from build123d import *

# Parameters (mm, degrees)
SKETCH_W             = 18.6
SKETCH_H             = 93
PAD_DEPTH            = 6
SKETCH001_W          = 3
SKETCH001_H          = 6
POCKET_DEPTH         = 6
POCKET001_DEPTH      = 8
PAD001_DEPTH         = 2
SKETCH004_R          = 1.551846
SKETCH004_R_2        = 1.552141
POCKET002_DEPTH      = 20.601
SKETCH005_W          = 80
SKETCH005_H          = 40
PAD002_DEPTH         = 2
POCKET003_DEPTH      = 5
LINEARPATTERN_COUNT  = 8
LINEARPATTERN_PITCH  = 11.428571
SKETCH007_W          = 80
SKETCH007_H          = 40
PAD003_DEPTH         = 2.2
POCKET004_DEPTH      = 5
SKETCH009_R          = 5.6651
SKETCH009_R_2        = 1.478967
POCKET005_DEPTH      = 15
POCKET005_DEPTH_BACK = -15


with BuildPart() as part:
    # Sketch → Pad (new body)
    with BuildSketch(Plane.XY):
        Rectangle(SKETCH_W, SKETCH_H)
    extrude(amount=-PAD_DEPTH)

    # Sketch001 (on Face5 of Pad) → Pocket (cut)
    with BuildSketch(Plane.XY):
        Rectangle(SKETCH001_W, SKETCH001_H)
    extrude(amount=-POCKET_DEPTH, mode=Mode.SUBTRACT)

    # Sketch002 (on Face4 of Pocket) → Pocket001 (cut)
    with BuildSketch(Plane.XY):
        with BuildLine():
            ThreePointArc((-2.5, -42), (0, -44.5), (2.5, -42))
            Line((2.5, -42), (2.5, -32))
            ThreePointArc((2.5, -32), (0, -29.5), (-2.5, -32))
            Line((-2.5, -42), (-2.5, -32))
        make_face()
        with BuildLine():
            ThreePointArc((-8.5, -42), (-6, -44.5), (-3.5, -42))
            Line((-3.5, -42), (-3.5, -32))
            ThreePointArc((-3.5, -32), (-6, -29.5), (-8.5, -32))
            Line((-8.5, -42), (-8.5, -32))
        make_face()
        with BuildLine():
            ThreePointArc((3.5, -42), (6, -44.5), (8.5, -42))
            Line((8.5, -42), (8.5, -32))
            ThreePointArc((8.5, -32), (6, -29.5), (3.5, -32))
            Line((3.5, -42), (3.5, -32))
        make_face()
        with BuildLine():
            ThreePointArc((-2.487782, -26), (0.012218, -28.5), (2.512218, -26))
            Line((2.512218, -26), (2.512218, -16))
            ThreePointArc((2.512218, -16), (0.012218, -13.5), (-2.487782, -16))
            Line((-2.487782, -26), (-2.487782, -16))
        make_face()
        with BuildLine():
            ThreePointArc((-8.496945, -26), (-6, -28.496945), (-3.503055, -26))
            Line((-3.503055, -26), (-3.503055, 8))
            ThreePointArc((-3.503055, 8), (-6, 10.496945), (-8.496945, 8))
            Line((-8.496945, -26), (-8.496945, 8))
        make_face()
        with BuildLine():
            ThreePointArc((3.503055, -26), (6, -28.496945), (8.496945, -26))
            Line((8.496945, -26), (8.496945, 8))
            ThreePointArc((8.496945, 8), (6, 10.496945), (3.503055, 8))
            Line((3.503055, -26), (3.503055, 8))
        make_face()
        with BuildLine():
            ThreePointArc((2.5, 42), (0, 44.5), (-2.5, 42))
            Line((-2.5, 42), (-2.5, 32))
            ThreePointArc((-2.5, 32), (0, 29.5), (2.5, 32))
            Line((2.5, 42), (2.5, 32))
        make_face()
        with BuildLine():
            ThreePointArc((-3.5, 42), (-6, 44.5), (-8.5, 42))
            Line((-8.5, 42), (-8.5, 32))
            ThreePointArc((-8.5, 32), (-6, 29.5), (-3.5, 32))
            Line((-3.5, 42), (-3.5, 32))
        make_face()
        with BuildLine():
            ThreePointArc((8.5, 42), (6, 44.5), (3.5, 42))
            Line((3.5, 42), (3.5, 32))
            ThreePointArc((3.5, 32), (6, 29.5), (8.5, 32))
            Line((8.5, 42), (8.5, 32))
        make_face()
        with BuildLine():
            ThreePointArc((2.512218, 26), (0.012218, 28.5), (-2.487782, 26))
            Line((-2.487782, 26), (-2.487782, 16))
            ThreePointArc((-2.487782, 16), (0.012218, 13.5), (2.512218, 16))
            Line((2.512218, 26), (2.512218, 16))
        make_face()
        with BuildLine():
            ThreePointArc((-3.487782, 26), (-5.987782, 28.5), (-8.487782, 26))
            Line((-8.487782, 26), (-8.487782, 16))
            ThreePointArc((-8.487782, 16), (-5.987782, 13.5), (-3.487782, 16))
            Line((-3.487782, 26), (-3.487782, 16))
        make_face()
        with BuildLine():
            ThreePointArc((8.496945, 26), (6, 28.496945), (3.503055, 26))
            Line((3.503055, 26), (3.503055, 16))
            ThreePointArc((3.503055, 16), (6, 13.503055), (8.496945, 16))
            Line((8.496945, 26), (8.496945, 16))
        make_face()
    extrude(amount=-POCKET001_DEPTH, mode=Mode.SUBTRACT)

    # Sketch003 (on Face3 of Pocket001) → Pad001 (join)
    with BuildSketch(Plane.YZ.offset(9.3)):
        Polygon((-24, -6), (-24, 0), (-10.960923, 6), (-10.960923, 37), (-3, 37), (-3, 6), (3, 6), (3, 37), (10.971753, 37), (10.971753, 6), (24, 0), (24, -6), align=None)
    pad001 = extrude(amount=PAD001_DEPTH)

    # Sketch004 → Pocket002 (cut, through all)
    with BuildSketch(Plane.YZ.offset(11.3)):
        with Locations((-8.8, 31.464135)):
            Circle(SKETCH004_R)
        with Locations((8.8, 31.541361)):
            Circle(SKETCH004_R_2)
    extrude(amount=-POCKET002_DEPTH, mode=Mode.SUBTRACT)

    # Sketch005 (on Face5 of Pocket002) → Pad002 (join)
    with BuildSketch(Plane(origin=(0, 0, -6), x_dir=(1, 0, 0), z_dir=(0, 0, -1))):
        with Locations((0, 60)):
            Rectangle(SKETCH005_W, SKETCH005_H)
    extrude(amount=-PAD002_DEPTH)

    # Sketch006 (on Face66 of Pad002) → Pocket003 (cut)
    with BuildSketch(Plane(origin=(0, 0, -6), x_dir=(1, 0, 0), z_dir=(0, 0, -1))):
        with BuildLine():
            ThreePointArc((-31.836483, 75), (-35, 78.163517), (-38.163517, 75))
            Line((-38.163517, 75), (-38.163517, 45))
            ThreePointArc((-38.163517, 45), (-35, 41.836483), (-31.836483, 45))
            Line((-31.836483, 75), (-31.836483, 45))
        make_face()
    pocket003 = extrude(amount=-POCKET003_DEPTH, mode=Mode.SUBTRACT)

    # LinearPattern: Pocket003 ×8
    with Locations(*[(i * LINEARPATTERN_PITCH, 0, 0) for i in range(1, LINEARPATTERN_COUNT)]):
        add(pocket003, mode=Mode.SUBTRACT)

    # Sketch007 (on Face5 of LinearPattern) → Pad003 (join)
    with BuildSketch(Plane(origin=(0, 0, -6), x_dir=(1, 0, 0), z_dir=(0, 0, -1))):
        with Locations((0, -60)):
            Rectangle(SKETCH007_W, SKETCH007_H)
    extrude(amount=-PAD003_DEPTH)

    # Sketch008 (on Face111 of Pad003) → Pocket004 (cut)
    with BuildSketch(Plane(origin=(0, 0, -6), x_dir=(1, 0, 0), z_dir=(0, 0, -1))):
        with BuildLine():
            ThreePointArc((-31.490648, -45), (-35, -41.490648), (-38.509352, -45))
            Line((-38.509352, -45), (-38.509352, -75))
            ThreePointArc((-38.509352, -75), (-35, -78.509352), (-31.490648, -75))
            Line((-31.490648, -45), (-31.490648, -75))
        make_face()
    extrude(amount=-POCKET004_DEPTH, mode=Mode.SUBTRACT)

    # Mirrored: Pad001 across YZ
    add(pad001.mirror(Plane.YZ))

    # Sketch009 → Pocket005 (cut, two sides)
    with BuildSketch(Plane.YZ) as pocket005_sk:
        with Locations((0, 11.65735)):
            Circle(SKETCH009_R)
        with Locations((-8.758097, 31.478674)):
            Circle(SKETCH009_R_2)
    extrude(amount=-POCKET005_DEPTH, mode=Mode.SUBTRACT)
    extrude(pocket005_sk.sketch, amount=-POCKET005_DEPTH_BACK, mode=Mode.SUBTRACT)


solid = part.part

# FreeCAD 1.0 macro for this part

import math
import FreeCAD as App
import Part
import Sketcher

V = App.Vector
Q = App.Units.Quantity

doc = App.newDocument("Part")
body = doc.addObject("PartDesign::Body", "Body")

# Sketch on XY plane
sketch1 = body.newObject("Sketcher::SketchObject", "Sketch")
sketch1.AttachmentSupport = (doc.getObject("XY_Plane"), [""])
sketch1.MapMode = "FlatFace"
sketch1.addGeometry([
    Part.LineSegment(V(-9, 46, 0), V(-9, -46, 0)),
    Part.LineSegment(V(-9, -46, 0), V(9, -46, 0)),
    Part.LineSegment(V(9, -46, 0), V(9, 46, 0)),
    Part.LineSegment(V(9, 46, 0), V(-9, 46, 0)),
], False)
sketch1.addConstraint([
    Sketcher.Constraint("Coincident", 0, 2, 1, 1),
    Sketcher.Constraint("Coincident", 1, 2, 2, 1),
    Sketcher.Constraint("Coincident", 2, 2, 3, 1),
    Sketcher.Constraint("Coincident", 3, 2, 0, 1),
    Sketcher.Constraint("Vertical", 0),
    Sketcher.Constraint("Horizontal", 1),
    Sketcher.Constraint("Vertical", 2),
    Sketcher.Constraint("Horizontal", 3),
    Sketcher.Constraint("Symmetric", 0, 2, 2, 2, -1, 1),
    Sketcher.Constraint("DistanceY", 0, 2, 0, 1, Q("93 mm")),
    Sketcher.Constraint("DistanceX", 1, 1, 1, 2, Q("18.6 mm")),
])
pad1 = body.newObject("PartDesign::Pad", "Pad")
pad1.Profile = sketch1
pad1.Length = 6
pad1.Reversed = True

# Sketch on XY plane
sketch2 = body.newObject("Sketcher::SketchObject", "Sketch001")
sketch2.AttachmentSupport = (doc.getObject("XY_Plane"), [""])
sketch2.MapMode = "FlatFace"
sketch2.addGeometry([
    Part.LineSegment(V(-1.5, 3, 0), V(-1.5, -3, 0)),
    Part.LineSegment(V(-1.5, -3, 0), V(1.5, -3, 0)),
    Part.LineSegment(V(1.5, -3, 0), V(1.5, 3, 0)),
    Part.LineSegment(V(1.5, 3, 0), V(-1.5, 3, 0)),
], False)
sketch2.addConstraint([
    Sketcher.Constraint("Coincident", 0, 2, 1, 1),
    Sketcher.Constraint("Coincident", 1, 2, 2, 1),
    Sketcher.Constraint("Coincident", 2, 2, 3, 1),
    Sketcher.Constraint("Coincident", 3, 2, 0, 1),
    Sketcher.Constraint("Vertical", 0),
    Sketcher.Constraint("Horizontal", 1),
    Sketcher.Constraint("Vertical", 2),
    Sketcher.Constraint("Horizontal", 3),
    Sketcher.Constraint("Symmetric", 0, 2, 2, 2, -1, 1),
    Sketcher.Constraint("DistanceX", 1, 1, 1, 2, Q("3 mm")),
    Sketcher.Constraint("DistanceY", 0, 2, 0, 1, Q("6 mm")),
])
pocket1 = body.newObject("PartDesign::Pocket", "Pocket")
pocket1.Profile = sketch2
pocket1.Length = 6

# Sketch on XY plane
sketch3 = body.newObject("Sketcher::SketchObject", "Sketch002")
sketch3.AttachmentSupport = (doc.getObject("XY_Plane"), [""])
sketch3.MapMode = "FlatFace"
sketch3.addGeometry([
    Part.ArcOfCircle(Part.Circle(V(0, -42, 0), V(0, 0, 1), 2.5), math.radians(180), math.radians(360)),  # 0
    Part.LineSegment(V(2.5, -42, 0), V(2.5, -32, 0)),  # 1
    Part.ArcOfCircle(Part.Circle(V(0, -32, 0), V(0, 0, 1), 2.5), math.radians(0), math.radians(180)),  # 2
    Part.LineSegment(V(-2.5, -32, 0), V(-2.5, -42, 0)),  # 3
    Part.ArcOfCircle(Part.Circle(V(-6, -42, 0), V(0, 0, 1), 2.5), math.radians(180), math.radians(360)),  # 4
    Part.LineSegment(V(-3.5, -42, 0), V(-3.5, -32, 0)),  # 5
    Part.ArcOfCircle(Part.Circle(V(-6, -32, 0), V(0, 0, 1), 2.5), math.radians(0), math.radians(180)),  # 6
    Part.LineSegment(V(-8.5, -32, 0), V(-8.5, -42, 0)),  # 7
    Part.ArcOfCircle(Part.Circle(V(6, -42, 0), V(0, 0, 1), 2.5), math.radians(180), math.radians(360)),  # 8
    Part.LineSegment(V(8.5, -42, 0), V(8.5, -32, 0)),  # 9
    Part.ArcOfCircle(Part.Circle(V(6, -32, 0), V(0, 0, 1), 2.5), math.radians(0), math.radians(180)),  # 10
    Part.LineSegment(V(3.5, -32, 0), V(3.5, -42, 0)),  # 11
    Part.ArcOfCircle(Part.Circle(V(0, -26, 0), V(0, 0, 1), 2.5), math.radians(180), math.radians(360)),  # 12
    Part.LineSegment(V(2.5, -26, 0), V(2.5, -16, 0)),  # 13
    Part.ArcOfCircle(Part.Circle(V(0, -16, 0), V(0, 0, 1), 2.5), math.radians(0), math.radians(180)),  # 14
    Part.LineSegment(V(-2.5, -16, 0), V(-2.5, -26, 0)),  # 15
    Part.ArcOfCircle(Part.Circle(V(-6, -26, 0), V(0, 0, 1), 2.5), math.radians(180), math.radians(360)),  # 16
    Part.LineSegment(V(-3.5, -26, 0), V(-3.5, 8, 0)),  # 17
    Part.ArcOfCircle(Part.Circle(V(-6, 8, 0), V(0, 0, 1), 2.5), math.radians(0), math.radians(180)),  # 18
    Part.LineSegment(V(-8.5, 8, 0), V(-8.5, -26, 0)),  # 19
    Part.ArcOfCircle(Part.Circle(V(6, -26, 0), V(0, 0, 1), 2.5), math.radians(180), math.radians(360)),  # 20
    Part.LineSegment(V(8.5, -26, 0), V(8.5, 8, 0)),  # 21
    Part.ArcOfCircle(Part.Circle(V(6, 8, 0), V(0, 0, 1), 2.5), math.radians(0), math.radians(180)),  # 22
    Part.LineSegment(V(3.5, 8, 0), V(3.5, -26, 0)),  # 23
    Part.ArcOfCircle(Part.Circle(V(0, 42, 0), V(0, 0, 1), 2.5), math.radians(0), math.radians(180)),  # 24
    Part.LineSegment(V(-2.5, 42, 0), V(-2.5, 32, 0)),  # 25
    Part.ArcOfCircle(Part.Circle(V(0, 32, 0), V(0, 0, 1), 2.5), math.radians(180), math.radians(360)),  # 26
    Part.LineSegment(V(2.5, 32, 0), V(2.5, 42, 0)),  # 27
    Part.ArcOfCircle(Part.Circle(V(-6, 42, 0), V(0, 0, 1), 2.5), math.radians(0), math.radians(180)),  # 28
    Part.LineSegment(V(-8.5, 42, 0), V(-8.5, 32, 0)),  # 29
    Part.ArcOfCircle(Part.Circle(V(-6, 32, 0), V(0, 0, 1), 2.5), math.radians(180), math.radians(360)),  # 30
    Part.LineSegment(V(-3.5, 32, 0), V(-3.5, 42, 0)),  # 31
    Part.ArcOfCircle(Part.Circle(V(6, 42, 0), V(0, 0, 1), 2.5), math.radians(0), math.radians(180)),  # 32
    Part.LineSegment(V(3.5, 42, 0), V(3.5, 32, 0)),  # 33
    Part.ArcOfCircle(Part.Circle(V(6, 32, 0), V(0, 0, 1), 2.5), math.radians(180), math.radians(360)),  # 34
    Part.LineSegment(V(8.5, 32, 0), V(8.5, 42, 0)),  # 35
    Part.ArcOfCircle(Part.Circle(V(0, 26, 0), V(0, 0, 1), 2.5), math.radians(0), math.radians(180)),  # 36
    Part.LineSegment(V(-2.5, 26, 0), V(-2.5, 16, 0)),  # 37
    Part.ArcOfCircle(Part.Circle(V(0, 16, 0), V(0, 0, 1), 2.5), math.radians(180), math.radians(360)),  # 38
    Part.LineSegment(V(2.5, 16, 0), V(2.5, 26, 0)),  # 39
    Part.ArcOfCircle(Part.Circle(V(-6, 26, 0), V(0, 0, 1), 2.5), math.radians(0), math.radians(180)),  # 40
    Part.LineSegment(V(-8.5, 26, 0), V(-8.5, 16, 0)),  # 41
    Part.ArcOfCircle(Part.Circle(V(-6, 16, 0), V(0, 0, 1), 2.5), math.radians(180), math.radians(360)),  # 42
    Part.LineSegment(V(-3.5, 16, 0), V(-3.5, 26, 0)),  # 43
    Part.ArcOfCircle(Part.Circle(V(6, 26, 0), V(0, 0, 1), 2.5), math.radians(0), math.radians(180)),  # 44
    Part.LineSegment(V(3.5, 26, 0), V(3.5, 16, 0)),  # 45
    Part.ArcOfCircle(Part.Circle(V(6, 16, 0), V(0, 0, 1), 2.5), math.radians(180), math.radians(360)),  # 46
    Part.LineSegment(V(8.5, 16, 0), V(8.5, 26, 0)),  # 47
], False)
sketch3.addConstraint([
    Sketcher.Constraint("Tangent", 0, 2, 1, 1),
    Sketcher.Constraint("Tangent", 1, 2, 2, 1),
    Sketcher.Constraint("Tangent", 2, 2, 3, 1),
    Sketcher.Constraint("Tangent", 3, 2, 0, 1),
    Sketcher.Constraint("Tangent", 4, 2, 5, 1),
    Sketcher.Constraint("Tangent", 5, 2, 6, 1),
    Sketcher.Constraint("Tangent", 6, 2, 7, 1),
    Sketcher.Constraint("Tangent", 7, 2, 4, 1),
    Sketcher.Constraint("Tangent", 8, 2, 9, 1),
    Sketcher.Constraint("Tangent", 9, 2, 10, 1),
    Sketcher.Constraint("Tangent", 10, 2, 11, 1),
    Sketcher.Constraint("Tangent", 11, 2, 8, 1),
    Sketcher.Constraint("Tangent", 12, 2, 13, 1),
    Sketcher.Constraint("Tangent", 13, 2, 14, 1),
    Sketcher.Constraint("Tangent", 14, 2, 15, 1),
    Sketcher.Constraint("Tangent", 15, 2, 12, 1),
    Sketcher.Constraint("Tangent", 16, 2, 17, 1),
    Sketcher.Constraint("Tangent", 17, 2, 18, 1),
    Sketcher.Constraint("Tangent", 18, 2, 19, 1),
    Sketcher.Constraint("Tangent", 19, 2, 16, 1),
    Sketcher.Constraint("Tangent", 20, 2, 21, 1),
    Sketcher.Constraint("Tangent", 21, 2, 22, 1),
    Sketcher.Constraint("Tangent", 22, 2, 23, 1),
    Sketcher.Constraint("Tangent", 23, 2, 20, 1),
    Sketcher.Constraint("Tangent", 24, 2, 25, 1),
    Sketcher.Constraint("Tangent", 25, 2, 26, 1),
    Sketcher.Constraint("Tangent", 26, 2, 27, 1),
    Sketcher.Constraint("Tangent", 27, 2, 24, 1),
    Sketcher.Constraint("Tangent", 28, 2, 29, 1),
    Sketcher.Constraint("Tangent", 29, 2, 30, 1),
    Sketcher.Constraint("Tangent", 30, 2, 31, 1),
    Sketcher.Constraint("Tangent", 31, 2, 28, 1),
    Sketcher.Constraint("Tangent", 32, 2, 33, 1),
    Sketcher.Constraint("Tangent", 33, 2, 34, 1),
    Sketcher.Constraint("Tangent", 34, 2, 35, 1),
    Sketcher.Constraint("Tangent", 35, 2, 32, 1),
    Sketcher.Constraint("Tangent", 36, 2, 37, 1),
    Sketcher.Constraint("Tangent", 37, 2, 38, 1),
    Sketcher.Constraint("Tangent", 38, 2, 39, 1),
    Sketcher.Constraint("Tangent", 39, 2, 36, 1),
    Sketcher.Constraint("Tangent", 40, 2, 41, 1),
    Sketcher.Constraint("Tangent", 41, 2, 42, 1),
    Sketcher.Constraint("Tangent", 42, 2, 43, 1),
    Sketcher.Constraint("Tangent", 43, 2, 40, 1),
    Sketcher.Constraint("Tangent", 44, 2, 45, 1),
    Sketcher.Constraint("Tangent", 45, 2, 46, 1),
    Sketcher.Constraint("Tangent", 46, 2, 47, 1),
    Sketcher.Constraint("Tangent", 47, 2, 44, 1),
    Sketcher.Constraint("Vertical", 1),
    Sketcher.Constraint("Vertical", 3),
    Sketcher.Constraint("Vertical", 5),
    Sketcher.Constraint("Vertical", 7),
    Sketcher.Constraint("Vertical", 9),
    Sketcher.Constraint("Vertical", 11),
    Sketcher.Constraint("Vertical", 13),
    Sketcher.Constraint("Vertical", 15),
    Sketcher.Constraint("Vertical", 17),
    Sketcher.Constraint("Vertical", 19),
    Sketcher.Constraint("Vertical", 21),
    Sketcher.Constraint("Vertical", 23),
    Sketcher.Constraint("Vertical", 25),
    Sketcher.Constraint("Vertical", 27),
    Sketcher.Constraint("Vertical", 29),
    Sketcher.Constraint("Vertical", 31),
    Sketcher.Constraint("Vertical", 33),
    Sketcher.Constraint("Vertical", 35),
    Sketcher.Constraint("Vertical", 37),
    Sketcher.Constraint("Vertical", 39),
    Sketcher.Constraint("Vertical", 41),
    Sketcher.Constraint("Vertical", 43),
    Sketcher.Constraint("Vertical", 45),
    Sketcher.Constraint("Vertical", 47),
    Sketcher.Constraint("Equal", 2, 4),
    Sketcher.Constraint("Equal", 6, 8),
    Sketcher.Constraint("Equal", 10, 12),
    Sketcher.Constraint("Equal", 18, 20),
    Sketcher.Constraint("Equal", 14, 24),
    Sketcher.Constraint("Equal", 26, 28),
    Sketcher.Constraint("Equal", 30, 32),
    Sketcher.Constraint("Equal", 34, 36),
    Sketcher.Constraint("Equal", 38, 40),
    Sketcher.Constraint("Equal", 22, 44),
    Sketcher.Constraint("Symmetric", 0, 3, 24, 3, -1, 1),
    Sketcher.Constraint("Symmetric", 8, 3, 28, 3, -1, 1),
    Sketcher.Constraint("Symmetric", 4, 3, 32, 3, -1, 1),
    Sketcher.Constraint("Symmetric", 16, 3, 44, 3, -1, 1),
    Sketcher.Constraint("Symmetric", 4, 3, 8, 3, -2),
    Sketcher.Constraint("Symmetric", 16, 3, 20, 3, -2),
    Sketcher.Constraint("Symmetric", 2, 3, 26, 3, -1),
    Sketcher.Constraint("Symmetric", 12, 3, 36, 3, -1),
    Sketcher.Constraint("Horizontal", 0, 3, 4, 3),
    Sketcher.Constraint("Horizontal", 2, 3, 6, 3),
    Sketcher.Constraint("Horizontal", 6, 3, 10, 3),
    Sketcher.Constraint("Horizontal", 12, 3, 16, 3),
    Sketcher.Constraint("Horizontal", 18, 3, 22, 3),
    Sketcher.Constraint("Horizontal", 26, 3, 30, 3),
    Sketcher.Constraint("Horizontal", 30, 3, 34, 3),
    Sketcher.Constraint("Horizontal", 36, 3, 40, 3),
    Sketcher.Constraint("Horizontal", 38, 3, 42, 3),
    Sketcher.Constraint("Horizontal", 42, 3, 46, 3),
    Sketcher.Constraint("Vertical", 6, 3, 16, 3),
    Sketcher.Constraint("Equal", 11, 13),
    Sketcher.Constraint("Equal", 35, 37),
    Sketcher.Constraint("Radius", 0, Q("2.5 mm")),
    Sketcher.Constraint("DistanceY", 1, 1, 1, 2, Q("10 mm")),
    Sketcher.Constraint("DistanceY", 17, 1, 17, 2, Q("34 mm")),
    Sketcher.Constraint("DistanceY", 0, 3, -1, 1, Q("42 mm")),
    Sketcher.Constraint("DistanceX", 4, 3, -1, 1, Q("6 mm")),
    Sketcher.Constraint("DistanceY", 12, 3, -1, 1, Q("26 mm")),
    Sketcher.Constraint("Radius", 16, Q("2.496945 mm")),
    Sketcher.Constraint("DistanceX", 40, 2, -1, 1, Q("8.487782 mm")),
    Sketcher.Constraint("DistanceX", -1, 1, 12, 3, Q("0.012218 mm")),
])
pocket2 = body.newObject("PartDesign::Pocket", "Pocket001")
pocket2.Profile = sketch3
pocket2.Length = 8

# Sketch on YZ plane
sketch4 = body.newObject("Sketcher::SketchObject", "Sketch003")
sketch4.AttachmentSupport = (doc.getObject("YZ_Plane"), [""])
sketch4.MapMode = "FlatFace"
sketch4.AttachmentOffset = App.Placement(V(0, 0, 9.3), App.Rotation())
sketch4.addGeometry([
    Part.LineSegment(V(-24, 0, 0), V(-24, -6, 0)),  # 0
    Part.LineSegment(V(-24, -6, 0), V(24, -6, 0)),  # 1
    Part.LineSegment(V(24, -6, 0), V(24, 0, 0)),  # 2
    Part.LineSegment(V(24, 0, 0), V(11, 6, 0)),  # 3
    Part.LineSegment(V(11, 6, 0), V(11, 37, 0)),  # 4
    Part.LineSegment(V(11, 37, 0), V(3, 37, 0)),  # 5
    Part.LineSegment(V(3, 37, 0), V(3, 6, 0)),  # 6
    Part.LineSegment(V(3, 6, 0), V(-3, 6, 0)),  # 7
    Part.LineSegment(V(-3, 6, 0), V(-3, 37, 0)),  # 8
    Part.LineSegment(V(-3, 37, 0), V(-11, 37, 0)),  # 9
    Part.LineSegment(V(-11, 37, 0), V(-11, 6, 0)),  # 10
    Part.LineSegment(V(-11, 6, 0), V(-24, 0, 0)),  # 11
], False)
sketch4.addConstraint([
    Sketcher.Constraint("Coincident", 0, 2, 1, 1),
    Sketcher.Constraint("Coincident", 1, 2, 2, 1),
    Sketcher.Constraint("Coincident", 2, 2, 3, 1),
    Sketcher.Constraint("Coincident", 3, 2, 4, 1),
    Sketcher.Constraint("Coincident", 4, 2, 5, 1),
    Sketcher.Constraint("Coincident", 5, 2, 6, 1),
    Sketcher.Constraint("Coincident", 6, 2, 7, 1),
    Sketcher.Constraint("Coincident", 7, 2, 8, 1),
    Sketcher.Constraint("Coincident", 8, 2, 9, 1),
    Sketcher.Constraint("Coincident", 9, 2, 10, 1),
    Sketcher.Constraint("Coincident", 10, 2, 11, 1),
    Sketcher.Constraint("Coincident", 11, 2, 0, 1),
    Sketcher.Constraint("Vertical", 0),
    Sketcher.Constraint("Horizontal", 1),
    Sketcher.Constraint("Vertical", 2),
    Sketcher.Constraint("Vertical", 4),
    Sketcher.Constraint("Horizontal", 5),
    Sketcher.Constraint("Vertical", 6),
    Sketcher.Constraint("Horizontal", 7),
    Sketcher.Constraint("Vertical", 8),
    Sketcher.Constraint("Horizontal", 9),
    Sketcher.Constraint("Vertical", 10),
    Sketcher.Constraint("Symmetric", 2, 2, 11, 2, -1, 1),
    Sketcher.Constraint("Symmetric", 5, 2, 8, 2, -2),
    Sketcher.Constraint("PointOnObject", 2, 2, -1),
    Sketcher.Constraint("Horizontal", 3, 2, 6, 2),
    Sketcher.Constraint("Horizontal", 7, 2, 10, 2),
    Sketcher.Constraint("Equal", 7, 0),
    Sketcher.Constraint("DistanceX", 1, 1, 1, 2, Q("48 mm")),
    Sketcher.Constraint("DistanceX", 7, 2, 7, 1, Q("6 mm")),
    Sketcher.Constraint("DistanceY", 4, 1, 4, 2, Q("31 mm")),
    Sketcher.Constraint("DistanceY", -1, 1, 3, 2, Q("6 mm")),
    Sketcher.Constraint("Distance", 11, Q("14.353311 mm")),
    Sketcher.Constraint("DistanceX", 5, 2, 5, 1, Q("7.971753 mm")),
])
pad2 = body.newObject("PartDesign::Pad", "Pad001")
pad2.Profile = sketch4
pad2.Length = 2

# Sketch on YZ plane
sketch5 = body.newObject("Sketcher::SketchObject", "Sketch004")
sketch5.AttachmentSupport = (doc.getObject("YZ_Plane"), [""])
sketch5.MapMode = "FlatFace"
sketch5.AttachmentOffset = App.Placement(V(0, 0, 11.3), App.Rotation())
sketch5.addGeometry([
    Part.Circle(V(-8.8, 31.5, 0), V(0, 0, 1), 1.6),
    Part.Circle(V(8.8, 31.5, 0), V(0, 0, 1), 1.6),
], False)
sketch5.addConstraint([
    Sketcher.Constraint("DistanceX", 0, 3, -1, 1, Q("8.8 mm")),
    Sketcher.Constraint("DistanceX", -1, 1, 1, 3, Q("8.8 mm")),
    Sketcher.Constraint("Diameter", 1, Q("3.104282 mm")),
    Sketcher.Constraint("Diameter", 0, Q("3.103692 mm")),
    Sketcher.Constraint("DistanceY", -1, 1, 1, 3, Q("31.541361 mm")),
    Sketcher.Constraint("DistanceY", -1, 1, 0, 3, Q("31.464135 mm")),
])
pocket3 = body.newObject("PartDesign::Pocket", "Pocket002")
pocket3.Profile = sketch5
pocket3.Type = "ThroughAll"

# Sketch on XY plane
sketch6 = body.newObject("Sketcher::SketchObject", "Sketch005")
sketch6.AttachmentSupport = (doc.getObject("XY_Plane"), [""])
sketch6.MapMode = "FlatFace"
sketch6.AttachmentOffset = App.Placement(V(0, 0, -6), App.Rotation())
sketch6.addGeometry([
    Part.LineSegment(V(-40, -80, 0), V(-40, -40, 0)),
    Part.LineSegment(V(-40, -40, 0), V(40, -40, 0)),
    Part.LineSegment(V(40, -40, 0), V(40, -80, 0)),
    Part.LineSegment(V(40, -80, 0), V(-40, -80, 0)),
], False)
sketch6.addConstraint([
    Sketcher.Constraint("Coincident", 0, 2, 1, 1),
    Sketcher.Constraint("Coincident", 1, 2, 2, 1),
    Sketcher.Constraint("Coincident", 2, 2, 3, 1),
    Sketcher.Constraint("Coincident", 3, 2, 0, 1),
    Sketcher.Constraint("Vertical", 0),
    Sketcher.Constraint("Horizontal", 1),
    Sketcher.Constraint("Vertical", 2),
    Sketcher.Constraint("Horizontal", 3),
    Sketcher.Constraint("DistanceX", 1, 1, 1, 2, Q("80 mm")),
    Sketcher.Constraint("DistanceY", 0, 1, 0, 2, Q("40 mm")),
    Sketcher.Constraint("DistanceX", 0, 2, -1, 1, Q("40 mm")),
    Sketcher.Constraint("DistanceY", 0, 2, -1, 1, Q("40 mm")),
])
pad3 = body.newObject("PartDesign::Pad", "Pad002")
pad3.Profile = sketch6
pad3.Length = 2

# Sketch on XY plane
sketch7 = body.newObject("Sketcher::SketchObject", "Sketch006")
sketch7.AttachmentSupport = (doc.getObject("XY_Plane"), [""])
sketch7.MapMode = "FlatFace"
sketch7.AttachmentOffset = App.Placement(V(0, 0, -6), App.Rotation())
sketch7.addGeometry([
    Part.ArcOfCircle(Part.Circle(V(-35, -75, 0), V(0, 0, 1), 3.2), math.radians(180), math.radians(360)),
    Part.LineSegment(V(-38.2, -75, 0), V(-38.2, -45, 0)),
    Part.ArcOfCircle(Part.Circle(V(-35, -45, 0), V(0, 0, 1), 3.2), math.radians(0), math.radians(180)),
    Part.LineSegment(V(-31.8, -45, 0), V(-31.8, -75, 0)),
], False)
sketch7.addConstraint([
    Sketcher.Constraint("Tangent", 0, 1, 1, 1),
    Sketcher.Constraint("Tangent", 1, 2, 2, 2),
    Sketcher.Constraint("Tangent", 2, 1, 3, 1),
    Sketcher.Constraint("Tangent", 3, 2, 0, 2),
    Sketcher.Constraint("Vertical", 1),
    Sketcher.Constraint("Vertical", 3),
    Sketcher.Constraint("DistanceY", 1, 1, 1, 2, Q("30 mm")),
    Sketcher.Constraint("DistanceX", 0, 3, -1, 1, Q("35 mm")),
    Sketcher.Constraint("DistanceY", 0, 3, -1, 1, Q("75 mm")),
    Sketcher.Constraint("Radius", 0, Q("3.163517 mm")),
])
pocket4 = body.newObject("PartDesign::Pocket", "Pocket003")
pocket4.Profile = sketch7
pocket4.Length = 5
pocket4.Reversed = True
doc.recompute()

linearpattern = body.newObject("PartDesign::LinearPattern", "LinearPattern")
linearpattern.Originals = [pocket4]
linearpattern.Direction = (doc.getObject("X_Axis"), [""])
linearpattern.Mode = "offset"
linearpattern.Offset = 11.428571
linearpattern.Occurrences = 8
body.Tip = linearpattern

# Sketch on XY plane
sketch8 = body.newObject("Sketcher::SketchObject", "Sketch007")
sketch8.AttachmentSupport = (doc.getObject("XY_Plane"), [""])
sketch8.MapMode = "FlatFace"
sketch8.AttachmentOffset = App.Placement(V(0, 0, -6), App.Rotation())
sketch8.addGeometry([
    Part.LineSegment(V(-40, 40, 0), V(-40, 80, 0)),
    Part.LineSegment(V(-40, 80, 0), V(40, 80, 0)),
    Part.LineSegment(V(40, 80, 0), V(40, 40, 0)),
    Part.LineSegment(V(40, 40, 0), V(-40, 40, 0)),
], False)
sketch8.addConstraint([
    Sketcher.Constraint("Coincident", 0, 2, 1, 1),
    Sketcher.Constraint("Coincident", 1, 2, 2, 1),
    Sketcher.Constraint("Coincident", 2, 2, 3, 1),
    Sketcher.Constraint("Coincident", 3, 2, 0, 1),
    Sketcher.Constraint("Vertical", 0),
    Sketcher.Constraint("Horizontal", 1),
    Sketcher.Constraint("Vertical", 2),
    Sketcher.Constraint("Horizontal", 3),
    Sketcher.Constraint("DistanceX", 1, 1, 1, 2, Q("80 mm")),
    Sketcher.Constraint("DistanceY", 0, 1, 0, 2, Q("40 mm")),
    Sketcher.Constraint("DistanceX", 0, 2, -1, 1, Q("40 mm")),
    Sketcher.Constraint("DistanceY", -1, 1, 0, 2, Q("80 mm")),
])
pad4 = body.newObject("PartDesign::Pad", "Pad003")
pad4.Profile = sketch8
pad4.Length = 2.2

# Sketch on XY plane
sketch9 = body.newObject("Sketcher::SketchObject", "Sketch008")
sketch9.AttachmentSupport = (doc.getObject("XY_Plane"), [""])
sketch9.MapMode = "FlatFace"
sketch9.AttachmentOffset = App.Placement(V(0, 0, -6), App.Rotation())
sketch9.addGeometry([
    Part.ArcOfCircle(Part.Circle(V(-35, 45, 0), V(0, 0, 1), 3.5), math.radians(180), math.radians(360)),
    Part.LineSegment(V(-38.5, 45, 0), V(-38.5, 75, 0)),
    Part.ArcOfCircle(Part.Circle(V(-35, 75, 0), V(0, 0, 1), 3.5), math.radians(0), math.radians(180)),
    Part.LineSegment(V(-31.5, 75, 0), V(-31.5, 45, 0)),
], False)
sketch9.addConstraint([
    Sketcher.Constraint("Tangent", 0, 1, 1, 1),
    Sketcher.Constraint("Tangent", 1, 2, 2, 2),
    Sketcher.Constraint("Tangent", 2, 1, 3, 1),
    Sketcher.Constraint("Tangent", 3, 2, 0, 2),
    Sketcher.Constraint("Vertical", 1),
    Sketcher.Constraint("Vertical", 3),
    Sketcher.Constraint("DistanceY", 1, 1, 1, 2, Q("30 mm")),
    Sketcher.Constraint("DistanceX", 0, 3, -1, 1, Q("35 mm")),
    Sketcher.Constraint("DistanceY", -1, 1, 0, 3, Q("45 mm")),
    Sketcher.Constraint("Radius", 0, Q("3.509352 mm")),
])
pocket5 = body.newObject("PartDesign::Pocket", "Pocket004")
pocket5.Profile = sketch9
pocket5.Length = 5
pocket5.Reversed = True
doc.recompute()

mirrored = body.newObject("PartDesign::Mirrored", "Mirrored")
mirrored.Originals = [pad2]
mirrored.MirrorPlane = (doc.getObject("YZ_Plane"), [""])
body.Tip = mirrored

# Sketch on YZ plane
sketch10 = body.newObject("Sketcher::SketchObject", "Sketch009")
sketch10.AttachmentSupport = (doc.getObject("YZ_Plane"), [""])
sketch10.MapMode = "FlatFace"
sketch10.addGeometry([
    Part.Circle(V(0, 11.7, 0), V(0, 0, 1), 5.7),
    Part.Circle(V(-8.8, 31.5, 0), V(0, 0, 1), 1.5),
], False)
sketch10.addConstraint([
    Sketcher.Constraint("PointOnObject", 0, 3, -2),
    Sketcher.Constraint("Diameter", 0, Q("11.3302 mm")),
    Sketcher.Constraint("Diameter", 1, Q("2.957934 mm")),
    Sketcher.Constraint("DistanceY", -1, 1, 0, 3, Q("11.65735 mm")),
    Sketcher.Constraint("DistanceX", 1, 3, -1, 1, Q("8.758097 mm")),
    Sketcher.Constraint("DistanceY", -1, 1, 1, 3, Q("31.478674 mm")),
])
pocket6 = body.newObject("PartDesign::Pocket", "Pocket005")
pocket6.Profile = sketch10
pocket6.Type = "ThroughAll"
pocket6.Midplane = True

doc.recompute()
